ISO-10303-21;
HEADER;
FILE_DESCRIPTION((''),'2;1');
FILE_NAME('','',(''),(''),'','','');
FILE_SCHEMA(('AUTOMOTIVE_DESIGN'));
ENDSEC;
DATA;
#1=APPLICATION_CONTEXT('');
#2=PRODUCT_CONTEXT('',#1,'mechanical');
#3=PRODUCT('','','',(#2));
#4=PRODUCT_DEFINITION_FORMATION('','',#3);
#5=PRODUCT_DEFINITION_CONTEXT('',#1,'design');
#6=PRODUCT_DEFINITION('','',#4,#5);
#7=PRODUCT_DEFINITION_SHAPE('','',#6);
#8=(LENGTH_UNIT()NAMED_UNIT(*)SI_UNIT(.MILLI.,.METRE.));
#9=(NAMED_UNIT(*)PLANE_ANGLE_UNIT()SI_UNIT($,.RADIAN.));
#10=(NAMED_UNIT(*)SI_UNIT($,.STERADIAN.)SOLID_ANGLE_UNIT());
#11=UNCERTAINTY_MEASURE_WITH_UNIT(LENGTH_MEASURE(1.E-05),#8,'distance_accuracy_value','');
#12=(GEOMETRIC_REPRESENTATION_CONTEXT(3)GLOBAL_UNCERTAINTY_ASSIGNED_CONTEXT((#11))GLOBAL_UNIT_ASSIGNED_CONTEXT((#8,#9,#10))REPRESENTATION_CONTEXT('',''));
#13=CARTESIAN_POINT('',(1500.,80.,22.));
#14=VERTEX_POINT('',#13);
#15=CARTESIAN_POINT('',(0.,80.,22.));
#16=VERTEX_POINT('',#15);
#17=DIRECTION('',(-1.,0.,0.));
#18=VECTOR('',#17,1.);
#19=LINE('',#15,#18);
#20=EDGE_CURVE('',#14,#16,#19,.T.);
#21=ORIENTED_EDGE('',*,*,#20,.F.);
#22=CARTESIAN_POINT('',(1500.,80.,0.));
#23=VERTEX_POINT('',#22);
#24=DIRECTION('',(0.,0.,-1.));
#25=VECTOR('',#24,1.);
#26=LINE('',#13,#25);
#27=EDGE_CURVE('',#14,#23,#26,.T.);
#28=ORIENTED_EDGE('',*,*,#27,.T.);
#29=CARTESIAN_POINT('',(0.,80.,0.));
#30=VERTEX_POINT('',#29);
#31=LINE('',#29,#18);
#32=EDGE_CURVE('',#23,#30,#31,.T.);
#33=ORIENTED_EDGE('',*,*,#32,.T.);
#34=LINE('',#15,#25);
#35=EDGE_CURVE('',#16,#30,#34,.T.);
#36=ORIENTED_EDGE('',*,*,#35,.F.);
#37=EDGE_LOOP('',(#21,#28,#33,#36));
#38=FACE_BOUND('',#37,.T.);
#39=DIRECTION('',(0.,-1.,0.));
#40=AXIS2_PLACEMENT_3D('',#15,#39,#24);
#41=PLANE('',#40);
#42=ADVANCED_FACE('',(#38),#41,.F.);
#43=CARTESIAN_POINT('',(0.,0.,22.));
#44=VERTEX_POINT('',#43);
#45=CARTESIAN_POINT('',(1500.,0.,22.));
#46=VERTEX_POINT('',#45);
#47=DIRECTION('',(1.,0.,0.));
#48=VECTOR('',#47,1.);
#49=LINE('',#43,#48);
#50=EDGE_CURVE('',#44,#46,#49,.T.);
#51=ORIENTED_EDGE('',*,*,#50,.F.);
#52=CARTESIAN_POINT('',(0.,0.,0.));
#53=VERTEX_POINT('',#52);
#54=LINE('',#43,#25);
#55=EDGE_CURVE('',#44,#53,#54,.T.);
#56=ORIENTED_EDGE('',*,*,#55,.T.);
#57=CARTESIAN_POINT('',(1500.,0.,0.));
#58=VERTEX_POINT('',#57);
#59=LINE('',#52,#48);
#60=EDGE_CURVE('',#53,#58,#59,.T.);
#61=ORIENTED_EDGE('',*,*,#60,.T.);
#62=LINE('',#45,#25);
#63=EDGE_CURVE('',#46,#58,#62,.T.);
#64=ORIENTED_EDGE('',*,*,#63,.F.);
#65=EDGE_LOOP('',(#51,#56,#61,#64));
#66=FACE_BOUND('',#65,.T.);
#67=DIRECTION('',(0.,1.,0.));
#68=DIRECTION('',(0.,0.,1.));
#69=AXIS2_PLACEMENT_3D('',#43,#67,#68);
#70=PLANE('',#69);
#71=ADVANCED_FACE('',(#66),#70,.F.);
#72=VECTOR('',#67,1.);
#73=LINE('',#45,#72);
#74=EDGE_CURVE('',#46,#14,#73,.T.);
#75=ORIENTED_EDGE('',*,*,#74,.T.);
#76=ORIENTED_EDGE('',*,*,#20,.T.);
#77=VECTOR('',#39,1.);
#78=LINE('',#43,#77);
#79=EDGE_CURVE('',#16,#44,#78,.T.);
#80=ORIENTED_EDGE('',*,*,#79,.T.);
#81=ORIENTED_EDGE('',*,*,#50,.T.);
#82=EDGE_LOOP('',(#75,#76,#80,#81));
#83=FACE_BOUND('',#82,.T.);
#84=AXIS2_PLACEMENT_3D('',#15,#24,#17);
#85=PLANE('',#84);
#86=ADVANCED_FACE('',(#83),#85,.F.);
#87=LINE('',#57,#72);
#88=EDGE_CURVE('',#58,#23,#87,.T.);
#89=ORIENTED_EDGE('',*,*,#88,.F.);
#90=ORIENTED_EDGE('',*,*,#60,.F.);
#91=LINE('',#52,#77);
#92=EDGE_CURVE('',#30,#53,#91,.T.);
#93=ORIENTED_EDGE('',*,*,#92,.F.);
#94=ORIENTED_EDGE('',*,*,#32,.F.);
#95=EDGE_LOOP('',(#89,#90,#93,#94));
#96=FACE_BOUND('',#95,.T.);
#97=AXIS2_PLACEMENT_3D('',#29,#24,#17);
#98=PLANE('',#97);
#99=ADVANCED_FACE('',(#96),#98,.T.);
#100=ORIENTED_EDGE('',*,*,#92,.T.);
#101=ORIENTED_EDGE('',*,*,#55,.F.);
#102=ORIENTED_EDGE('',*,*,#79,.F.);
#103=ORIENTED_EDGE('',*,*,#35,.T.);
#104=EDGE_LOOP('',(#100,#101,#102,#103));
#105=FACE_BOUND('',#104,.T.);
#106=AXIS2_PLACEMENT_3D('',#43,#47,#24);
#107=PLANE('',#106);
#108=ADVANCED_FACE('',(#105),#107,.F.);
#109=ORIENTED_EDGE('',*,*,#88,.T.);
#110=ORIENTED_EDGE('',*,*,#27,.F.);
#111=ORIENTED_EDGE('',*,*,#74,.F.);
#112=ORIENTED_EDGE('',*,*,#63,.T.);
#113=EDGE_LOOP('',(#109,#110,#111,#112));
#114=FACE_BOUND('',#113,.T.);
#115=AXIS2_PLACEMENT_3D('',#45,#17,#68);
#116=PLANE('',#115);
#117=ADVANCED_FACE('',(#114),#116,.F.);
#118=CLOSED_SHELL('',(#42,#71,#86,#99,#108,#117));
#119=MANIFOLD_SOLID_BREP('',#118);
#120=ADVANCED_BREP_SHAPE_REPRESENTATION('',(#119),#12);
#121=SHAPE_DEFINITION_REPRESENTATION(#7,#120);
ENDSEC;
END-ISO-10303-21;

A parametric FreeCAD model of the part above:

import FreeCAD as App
import Part
import Sketcher

V = App.Vector

doc = App.newDocument("Part")
body = doc.addObject("PartDesign::Body", "Body")

# Sketch on XY plane
sketch1 = body.newObject("Sketcher::SketchObject", "Sketch")
sketch1.AttachmentSupport = (doc.getObject("XY_Plane"), [""])
sketch1.MapMode = "FlatFace"
sketch1.addGeometry([
    Part.LineSegment(V(0, 80, 0), V(0, 0, 0)),
    Part.LineSegment(V(0, 0, 0), V(1500, 0, 0)),
    Part.LineSegment(V(1500, 0, 0), V(1500, 80, 0)),
    Part.LineSegment(V(1500, 80, 0), V(0, 80, 0)),
], False)
sketch1.addConstraint([
    Sketcher.Constraint("Coincident", 0, 2, 1, 1),
    Sketcher.Constraint("Coincident", 1, 2, 2, 1),
    Sketcher.Constraint("Coincident", 2, 2, 3, 1),
    Sketcher.Constraint("Coincident", 3, 2, 0, 1),
    Sketcher.Constraint("Vertical", 0),
    Sketcher.Constraint("Horizontal", 1),
    Sketcher.Constraint("Vertical", 2),
    Sketcher.Constraint("Horizontal", 3),
    Sketcher.Constraint("Coincident", 0, 2, -1, 1),
    Sketcher.Constraint("DistanceX", 1, 1, 1, 2, 1500.0),
    Sketcher.Constraint("DistanceY", 0, 2, 0, 1, 80.0),
])
pad1 = body.newObject("PartDesign::Pad", "Pad")
pad1.Profile = sketch1
pad1.Length = 22

doc.recompute()
